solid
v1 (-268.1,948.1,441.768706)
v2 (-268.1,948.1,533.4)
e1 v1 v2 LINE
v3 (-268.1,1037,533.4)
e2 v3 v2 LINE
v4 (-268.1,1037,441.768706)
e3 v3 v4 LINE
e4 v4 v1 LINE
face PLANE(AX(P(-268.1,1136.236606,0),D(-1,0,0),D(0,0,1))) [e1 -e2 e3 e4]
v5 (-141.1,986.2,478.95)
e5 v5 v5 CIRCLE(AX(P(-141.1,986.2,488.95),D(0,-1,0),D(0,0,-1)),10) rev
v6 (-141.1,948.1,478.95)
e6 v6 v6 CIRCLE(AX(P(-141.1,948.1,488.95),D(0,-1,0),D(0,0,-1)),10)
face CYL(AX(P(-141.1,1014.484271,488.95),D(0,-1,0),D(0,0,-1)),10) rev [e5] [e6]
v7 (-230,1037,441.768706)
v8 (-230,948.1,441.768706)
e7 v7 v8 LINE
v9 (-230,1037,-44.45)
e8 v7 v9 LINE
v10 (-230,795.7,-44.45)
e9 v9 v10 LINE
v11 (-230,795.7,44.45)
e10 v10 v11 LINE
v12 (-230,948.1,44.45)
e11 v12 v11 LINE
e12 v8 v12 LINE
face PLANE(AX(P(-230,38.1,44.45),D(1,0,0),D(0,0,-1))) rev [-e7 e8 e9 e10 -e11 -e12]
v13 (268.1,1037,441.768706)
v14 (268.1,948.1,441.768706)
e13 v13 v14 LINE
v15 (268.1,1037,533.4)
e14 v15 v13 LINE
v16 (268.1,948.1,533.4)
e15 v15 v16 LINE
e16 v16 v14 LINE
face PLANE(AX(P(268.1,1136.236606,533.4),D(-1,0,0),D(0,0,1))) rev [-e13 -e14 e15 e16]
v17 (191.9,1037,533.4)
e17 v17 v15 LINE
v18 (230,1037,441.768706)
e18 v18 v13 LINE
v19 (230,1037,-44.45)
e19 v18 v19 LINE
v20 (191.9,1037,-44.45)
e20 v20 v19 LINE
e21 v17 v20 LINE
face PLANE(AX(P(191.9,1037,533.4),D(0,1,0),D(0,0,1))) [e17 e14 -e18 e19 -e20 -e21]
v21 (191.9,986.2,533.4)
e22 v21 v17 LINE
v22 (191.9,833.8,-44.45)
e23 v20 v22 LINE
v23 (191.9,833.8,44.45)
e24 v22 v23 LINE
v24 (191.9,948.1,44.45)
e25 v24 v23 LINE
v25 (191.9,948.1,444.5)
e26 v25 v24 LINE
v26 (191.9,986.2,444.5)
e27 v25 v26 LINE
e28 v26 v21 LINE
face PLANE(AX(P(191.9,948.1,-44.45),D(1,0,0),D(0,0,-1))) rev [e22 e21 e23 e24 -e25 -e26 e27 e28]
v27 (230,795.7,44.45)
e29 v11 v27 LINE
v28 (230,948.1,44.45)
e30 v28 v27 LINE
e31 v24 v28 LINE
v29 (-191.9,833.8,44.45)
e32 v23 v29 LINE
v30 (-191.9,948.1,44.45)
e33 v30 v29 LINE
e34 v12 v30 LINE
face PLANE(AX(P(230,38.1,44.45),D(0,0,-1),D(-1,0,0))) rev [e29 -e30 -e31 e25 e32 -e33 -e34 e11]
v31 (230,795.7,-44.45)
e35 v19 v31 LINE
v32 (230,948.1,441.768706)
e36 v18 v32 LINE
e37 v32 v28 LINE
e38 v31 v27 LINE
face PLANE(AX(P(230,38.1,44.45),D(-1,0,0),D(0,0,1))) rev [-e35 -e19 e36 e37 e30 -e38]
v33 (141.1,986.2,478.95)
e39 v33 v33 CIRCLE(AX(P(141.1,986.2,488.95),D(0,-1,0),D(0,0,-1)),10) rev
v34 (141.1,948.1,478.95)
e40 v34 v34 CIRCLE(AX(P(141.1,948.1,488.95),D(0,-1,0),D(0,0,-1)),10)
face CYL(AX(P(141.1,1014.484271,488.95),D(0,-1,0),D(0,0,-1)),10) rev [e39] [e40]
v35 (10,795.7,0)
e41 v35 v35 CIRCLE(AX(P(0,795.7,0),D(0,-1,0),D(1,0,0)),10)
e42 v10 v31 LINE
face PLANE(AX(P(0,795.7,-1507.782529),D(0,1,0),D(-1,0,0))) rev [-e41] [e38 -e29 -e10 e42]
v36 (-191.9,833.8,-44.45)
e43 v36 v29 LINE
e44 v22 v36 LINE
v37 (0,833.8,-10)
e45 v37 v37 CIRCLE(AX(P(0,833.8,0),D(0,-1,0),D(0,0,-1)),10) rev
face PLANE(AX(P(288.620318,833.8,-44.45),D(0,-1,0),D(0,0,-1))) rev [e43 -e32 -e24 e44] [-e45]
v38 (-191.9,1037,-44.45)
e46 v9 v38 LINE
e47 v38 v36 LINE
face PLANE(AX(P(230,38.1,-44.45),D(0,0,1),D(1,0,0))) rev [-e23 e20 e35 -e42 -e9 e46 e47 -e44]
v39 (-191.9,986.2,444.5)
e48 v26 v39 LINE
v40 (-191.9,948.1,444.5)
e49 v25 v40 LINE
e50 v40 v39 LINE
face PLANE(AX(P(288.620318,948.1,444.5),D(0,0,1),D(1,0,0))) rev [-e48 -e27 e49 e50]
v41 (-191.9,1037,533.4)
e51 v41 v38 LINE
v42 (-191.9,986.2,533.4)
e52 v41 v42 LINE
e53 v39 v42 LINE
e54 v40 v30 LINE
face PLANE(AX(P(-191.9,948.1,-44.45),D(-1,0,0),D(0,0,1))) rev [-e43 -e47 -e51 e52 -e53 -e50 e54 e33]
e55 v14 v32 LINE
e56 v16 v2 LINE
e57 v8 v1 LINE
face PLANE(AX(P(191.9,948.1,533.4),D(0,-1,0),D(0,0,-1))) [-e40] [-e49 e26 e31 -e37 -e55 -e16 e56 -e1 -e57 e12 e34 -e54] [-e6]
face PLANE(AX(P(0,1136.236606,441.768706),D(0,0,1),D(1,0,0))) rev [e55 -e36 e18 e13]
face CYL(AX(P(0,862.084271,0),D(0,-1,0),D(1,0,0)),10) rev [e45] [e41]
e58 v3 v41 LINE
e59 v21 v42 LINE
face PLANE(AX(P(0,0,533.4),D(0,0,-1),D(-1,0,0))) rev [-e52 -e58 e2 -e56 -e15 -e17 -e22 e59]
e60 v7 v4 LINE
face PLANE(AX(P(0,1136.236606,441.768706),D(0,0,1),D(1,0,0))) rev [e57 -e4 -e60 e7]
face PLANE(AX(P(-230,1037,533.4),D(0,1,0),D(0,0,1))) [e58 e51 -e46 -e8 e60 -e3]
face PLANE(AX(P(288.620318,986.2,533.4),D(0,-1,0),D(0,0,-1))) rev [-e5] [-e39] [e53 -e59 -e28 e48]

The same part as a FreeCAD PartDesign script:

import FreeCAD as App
import Part
import Sketcher

V = App.Vector


def add_polygon(sketch, points):
    """Adds a closed chain of lines whose ends are joined by coincident constraints."""
    first, n = sketch.GeometryCount, len(points)
    for a, b in zip(points, points[1:] + points[:1]):
        sketch.addGeometry(Part.LineSegment(App.Vector(*a, 0), App.Vector(*b, 0)), False)
    for i in range(n):
        sketch.addConstraint(Sketcher.Constraint("Coincident", first + i, 2, first + (i + 1) % n, 1))

doc = App.newDocument("Part")
body = doc.addObject("PartDesign::Body", "Body")
body.AllowCompound = True

# Sketch on XZ plane
sketch1 = body.newObject("Sketcher::SketchObject", "Sketch")
sketch1.AttachmentSupport = (doc.getObject("XZ_Plane"), [""])
sketch1.MapMode = "FlatFace"
add_polygon(sketch1, [(-230, -44), (-230, 44), (230, 44), (230, -44)])  # lines 0-3
sketch1.addConstraint([
    Sketcher.Constraint("Vertical", 0),
    Sketcher.Constraint("Horizontal", 1),
    Sketcher.Constraint("Vertical", 2),
    Sketcher.Constraint("Horizontal", 3),
    Sketcher.Constraint("Symmetric", 0, 2, 2, 2, -1, 1),
    Sketcher.Constraint("DistanceX", 1, 1, 1, 2, 460.0),
    Sketcher.Constraint("DistanceY", 0, 1, 0, 2, 88.9),
])
pad1 = body.newObject("PartDesign::Pad", "Pad")
pad1.Profile = sketch1
pad1.Length = 38.1
pad1.Reversed = True

# Sketch on XZ plane
sketch2 = body.newObject("Sketcher::SketchObject", "Sketch001")
sketch2.AttachmentSupport = (doc.getObject("XZ_Plane"), [""])
sketch2.MapMode = "FlatFace"
sketch2.AttachmentOffset = App.Placement(V(0, 0, -38.1), App.Rotation())
add_polygon(sketch2, [(-230, -44), (-230, 44), (-192, 44), (-192, -44)])  # lines 0-3
add_polygon(sketch2, [(192, -44), (192, 44), (230, 44), (230, -44)])  # lines 4-7
sketch2.addConstraint([
    Sketcher.Constraint("Vertical", 0),
    Sketcher.Constraint("Horizontal", 1),
    Sketcher.Constraint("Vertical", 2),
    Sketcher.Constraint("Horizontal", 3),
    Sketcher.Constraint("Vertical", 4),
    Sketcher.Constraint("Horizontal", 5),
    Sketcher.Constraint("Vertical", 6),
    Sketcher.Constraint("Horizontal", 7),
    Sketcher.Constraint("Symmetric", 2, 2, 4, 2, -1, 1),
    Sketcher.Constraint("Symmetric", 0, 2, 6, 2, -1, 1),
    Sketcher.Constraint("Horizontal", 1, 2, 4, 2),
    Sketcher.Constraint("DistanceX", 1, 1, 1, 2, 38.1),
    Sketcher.Constraint("DistanceY", 0, 1, 0, 2, 88.9),
    Sketcher.Constraint("DistanceX", 0, 2, -1, 1, 230.0),
])
pad2 = body.newObject("PartDesign::Pad", "Pad001")
pad2.Profile = sketch2
pad2.Length = 910
pad2.Reversed = True

# Sketch on XY plane
sketch3 = body.newObject("Sketcher::SketchObject", "Sketch002")
sketch3.AttachmentSupport = (doc.getObject("XY_Plane"), [""])
sketch3.MapMode = "FlatFace"
sketch3.AttachmentOffset = App.Placement(V(0, 0, -44.45), App.Rotation())
add_polygon(sketch3, [(-192, 1037), (-192, 948), (-230, 948), (-230, 1037)])  # lines 0-3
add_polygon(sketch3, [(230, 1037), (230, 948), (192, 948), (192, 1037)])  # lines 4-7
sketch3.addConstraint([
    Sketcher.Constraint("Vertical", 0),
    Sketcher.Constraint("Horizontal", 1),
    Sketcher.Constraint("Vertical", 2),
    Sketcher.Constraint("Horizontal", 3),
    Sketcher.Constraint("Vertical", 4),
    Sketcher.Constraint("Horizontal", 5),
    Sketcher.Constraint("Vertical", 6),
    Sketcher.Constraint("Horizontal", 7),
    Sketcher.Constraint("Symmetric", 1, 2, 4, 2, -2),
    Sketcher.Constraint("Symmetric", 3, 2, 6, 2, -2),
    Sketcher.Constraint("DistanceX", 1, 2, 1, 1, 38.1),
    Sketcher.Constraint("DistanceY", 0, 2, 0, 1, 88.9),
    Sketcher.Constraint("DistanceX", 1, 2, -1, 1, 230.0),
    Sketcher.Constraint("DistanceY", -1, 1, 2, 2, 1037.0),
])
pad3 = body.newObject("PartDesign::Pad", "Pad002")
pad3.Profile = sketch3
pad3.Length = 577.85

# Sketch on XZ plane
sketch4 = body.newObject("Sketcher::SketchObject", "Sketch003")
sketch4.AttachmentSupport = (doc.getObject("XZ_Plane"), [""])
sketch4.MapMode = "FlatFace"
sketch4.AttachmentOffset = App.Placement(V(0, 0, -948.1), App.Rotation())
add_polygon(sketch4, [(-268, 533), (-268, 442), (-230, 442), (-230, 533)])  # lines 0-3
add_polygon(sketch4, [(230, 533), (230, 442), (268, 442), (268, 533)])  # lines 4-7
sketch4.addConstraint([
    Sketcher.Constraint("Vertical", 0),
    Sketcher.Constraint("Horizontal", 1),
    Sketcher.Constraint("Vertical", 2),
    Sketcher.Constraint("Horizontal", 3),
    Sketcher.Constraint("Vertical", 4),
    Sketcher.Constraint("Horizontal", 5),
    Sketcher.Constraint("Vertical", 6),
    Sketcher.Constraint("Horizontal", 7),
    Sketcher.Constraint("Symmetric", 1, 2, 4, 2, -2),
    Sketcher.Constraint("Symmetric", 3, 2, 6, 2, -2),
    Sketcher.Constraint("DistanceX", 1, 1, 1, 2, 38.1),
    Sketcher.Constraint("DistanceX", 1, 2, -1, 1, 230.0),
    Sketcher.Constraint("DistanceY", -1, 1, 2, 2, 533.4),
    Sketcher.Constraint("DistanceY", 0, 2, 0, 1, 91.631294),
])
pad4 = body.newObject("PartDesign::Pad", "Pad003")
pad4.Profile = sketch4
pad4.Type = "TwoLengths"
pad4.Length = 615
pad4.Length2 = 88.9

# Sketch on YZ plane
sketch5 = body.newObject("Sketcher::SketchObject", "Sketch004")
sketch5.AttachmentSupport = (doc.getObject("YZ_Plane"), [""])
sketch5.MapMode = "FlatFace"
sketch5.AttachmentOffset = App.Placement(V(0, 0, 230), App.Rotation())
add_polygon(sketch5, [(371, 442), (333, 442), (333, 533), (371, 533)])  # lines 0-3
sketch5.addConstraint([
    Sketcher.Constraint("Horizontal", 0),
    Sketcher.Constraint("Vertical", 1),
    Sketcher.Constraint("Horizontal", 2),
    Sketcher.Constraint("Vertical", 3),
    Sketcher.Constraint("DistanceX", 0, 2, 0, 1, 38.1),
    Sketcher.Constraint("DistanceX", -1, 1, 0, 2, 333.1),
    Sketcher.Constraint("DistanceY", -1, 1, 1, 2, 533.4),
    Sketcher.Constraint("DistanceY", 1, 1, 1, 2, 91.631294),
])
pad5 = body.newObject("PartDesign::Pad", "Pad004")
pad5.Profile = sketch5
pad5.Length = 460
pad5.Reversed = True

# Sketch on XY plane
sketch6 = body.newObject("Sketcher::SketchObject", "Sketch005")
sketch6.AttachmentSupport = (doc.getObject("XY_Plane"), [""])
sketch6.MapMode = "FlatFace"
sketch6.AttachmentOffset = App.Placement(V(0, 0, 533.4), App.Rotation())
add_polygon(sketch6, [(-577, 796), (-577, -246), (268, -246), (268, 948), (230, 948), (230, 796), (-230, 796), (-230, 948), (-268, 948), (-268, 796)])  # lines 0-9
sketch6.addConstraint([
    Sketcher.Constraint("Vertical", 0),
    Sketcher.Constraint("Horizontal", 1),
    Sketcher.Constraint("Vertical", 2),
    Sketcher.Constraint("Horizontal", 3),
    Sketcher.Constraint("Vertical", 4),
    Sketcher.Constraint("Horizontal", 5),
    Sketcher.Constraint("Vertical", 6),
    Sketcher.Constraint("Horizontal", 7),
    Sketcher.Constraint("Vertical", 8),
    Sketcher.Constraint("Horizontal", 9),
    Sketcher.Constraint("Symmetric", 3, 2, 6, 2, -2),
    Sketcher.Constraint("Horizontal", 5, 2, 8, 2),
    Sketcher.Constraint("Equal", 3, 7),
    Sketcher.Constraint("DistanceX", 5, 2, 5, 1, 460.0),
    Sketcher.Constraint("DistanceX", 3, 2, 3, 1, 38.1),
    Sketcher.Constraint("DistanceY", 4, 2, 4, 1, 152.4),
    Sketcher.Constraint("DistanceY", -1, 1, 2, 2, 948.1),
    Sketcher.Constraint("DistanceX", 1, 1, 1, 2, 845.46731),
    Sketcher.Constraint("DistanceY", 0, 2, 0, 1, 1041.973106),
])
pocket1 = body.newObject("PartDesign::Pocket", "Pocket")
pocket1.Profile = sketch6
pocket1.Length = 577.85

# Sketch on YZ plane
sketch7 = body.newObject("Sketcher::SketchObject", "Sketch006")
sketch7.AttachmentSupport = (doc.getObject("YZ_Plane"), [""])
sketch7.MapMode = "FlatFace"
sketch7.AttachmentOffset = App.Placement(V(0, 0, -191.9), App.Rotation())
add_polygon(sketch7, [(834, 44), (796, 44), (796, -44), (834, -44)])  # lines 0-3
add_polygon(sketch7, [(986, 533), (948, 533), (948, 444), (986, 444)])  # lines 4-7
sketch7.addConstraint([
    Sketcher.Constraint("Horizontal", 0),
    Sketcher.Constraint("Vertical", 1),
    Sketcher.Constraint("Horizontal", 2),
    Sketcher.Constraint("Vertical", 3),
    Sketcher.Constraint("Horizontal", 4),
    Sketcher.Constraint("Vertical", 5),
    Sketcher.Constraint("Horizontal", 6),
    Sketcher.Constraint("Vertical", 7),
    Sketcher.Constraint("Equal", 2, 4),
    Sketcher.Constraint("Equal", 3, 5),
    Sketcher.Constraint("DistanceX", 0, 2, 0, 1, 38.1),
    Sketcher.Constraint("DistanceY", 1, 2, 1, 1, 88.9),
    Sketcher.Constraint("DistanceX", -1, 1, 0, 2, 795.7),
    Sketcher.Constraint("DistanceX", -1, 1, 4, 2, 948.1),
    Sketcher.Constraint("DistanceY", -1, 1, 4, 2, 533.4),
    Sketcher.Constraint("DistanceY", -1, 1, 0, 2, 44.45),
])
pad6 = body.newObject("PartDesign::Pad", "Pad005")
pad6.Profile = sketch7
pad6.Length = 383.8

# Sketch on XZ plane
sketch8 = body.newObject("Sketcher::SketchObject", "Sketch007")
sketch8.AttachmentSupport = (doc.getObject("XZ_Plane"), [""])
sketch8.MapMode = "FlatFace"
sketch8.AttachmentOffset = App.Placement(V(0, 0, -948.1), App.Rotation())
sketch8.addGeometry([
    Part.Circle(V(-141, 489, 0), V(0, 0, 1), 10),
    Part.Circle(V(141, 489, 0), V(0, 0, 1), 10),
], False)
sketch8.addConstraint([
    Sketcher.Constraint("Equal", 0, 1),
    Sketcher.Constraint("Symmetric", 0, 3, 1, 3, -2),
    Sketcher.Constraint("Diameter", 0, 20.0),
    Sketcher.Constraint("DistanceX", 0, 3, -1, 1, 141.1),
    Sketcher.Constraint("DistanceY", -1, 1, 0, 3, 488.95),
])
pocket2 = body.newObject("PartDesign::Pocket", "Pocket001")
pocket2.Profile = sketch8
pocket2.Length = 38.1

# Sketch on XZ plane
sketch9 = body.newObject("Sketcher::SketchObject", "Sketch008")
sketch9.AttachmentSupport = (doc.getObject("XZ_Plane"), [""])
sketch9.MapMode = "FlatFace"
sketch9.AttachmentOffset = App.Placement(V(0, 0, -795.7), App.Rotation())
sketch9.addGeometry(Part.Circle(V(0, 0, 0), V(0, 0, 1), 10), False)
sketch9.addConstraint([
    Sketcher.Constraint("Coincident", 0, 3, -1, 1),
    Sketcher.Constraint("Diameter", 0, 20.0),
])
pocket3 = body.newObject("PartDesign::Pocket", "Pocket002")
pocket3.Profile = sketch9
pocket3.Length = 38.1

doc.recompute()
